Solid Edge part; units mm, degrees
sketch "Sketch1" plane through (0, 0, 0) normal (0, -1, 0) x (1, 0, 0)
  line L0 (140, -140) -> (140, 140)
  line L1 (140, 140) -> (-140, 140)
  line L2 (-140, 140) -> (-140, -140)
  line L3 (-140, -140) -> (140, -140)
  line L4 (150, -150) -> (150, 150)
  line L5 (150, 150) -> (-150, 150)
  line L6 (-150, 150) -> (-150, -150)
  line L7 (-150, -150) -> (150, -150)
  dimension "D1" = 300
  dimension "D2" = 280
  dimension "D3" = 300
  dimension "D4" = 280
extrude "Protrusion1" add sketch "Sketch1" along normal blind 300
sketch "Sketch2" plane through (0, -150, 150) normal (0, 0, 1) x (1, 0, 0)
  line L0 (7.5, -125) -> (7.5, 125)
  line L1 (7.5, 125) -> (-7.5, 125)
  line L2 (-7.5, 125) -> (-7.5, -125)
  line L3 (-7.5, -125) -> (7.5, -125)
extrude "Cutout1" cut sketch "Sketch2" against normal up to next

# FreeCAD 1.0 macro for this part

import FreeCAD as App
import Part
import Sketcher
Q = App.Units.Quantity

doc = App.newDocument("Part")
body = doc.addObject("PartDesign::Body", "Body")

# Sketch on XZ plane
sketch1 = body.newObject("Sketcher::SketchObject", "Sketch")
sketch1.AttachmentSupport = (doc.getObject("XZ_Plane"), [""])
sketch1.MapMode = "FlatFace"
sketch1.addGeometry([
    Part.LineSegment(App.Vector(-150, -150, 0), App.Vector(150, -150, 0)),  # 0
    Part.LineSegment(App.Vector(150, -150, 0), App.Vector(150, 150, 0)),  # 1
    Part.LineSegment(App.Vector(150, 150, 0), App.Vector(-150, 150, 0)),  # 2
    Part.LineSegment(App.Vector(-150, 150, 0), App.Vector(-150, -150, 0)),  # 3
    Part.LineSegment(App.Vector(140, 140, 0), App.Vector(140, -140, 0)),  # 4
    Part.LineSegment(App.Vector(140, -140, 0), App.Vector(-140, -140, 0)),  # 5
    Part.LineSegment(App.Vector(-140, -140, 0), App.Vector(-140, 140, 0)),  # 6
    Part.LineSegment(App.Vector(-140, 140, 0), App.Vector(140, 140, 0)),  # 7
], False)
sketch1.addConstraint([
    Sketcher.Constraint("Coincident", 0, 2, 1, 1),
    Sketcher.Constraint("Coincident", 1, 2, 2, 1),
    Sketcher.Constraint("Coincident", 2, 2, 3, 1),
    Sketcher.Constraint("Coincident", 3, 2, 0, 1),
    Sketcher.Constraint("Coincident", 4, 2, 5, 1),
    Sketcher.Constraint("Coincident", 5, 2, 6, 1),
    Sketcher.Constraint("Coincident", 6, 2, 7, 1),
    Sketcher.Constraint("Coincident", 7, 2, 4, 1),
    Sketcher.Constraint("Horizontal", 0),
    Sketcher.Constraint("Vertical", 1),
    Sketcher.Constraint("Horizontal", 2),
    Sketcher.Constraint("Vertical", 3),
    Sketcher.Constraint("Vertical", 4),
    Sketcher.Constraint("Horizontal", 5),
    Sketcher.Constraint("Vertical", 6),
    Sketcher.Constraint("Horizontal", 7),
    Sketcher.Constraint("Symmetric", 0, 2, 2, 2, -1, 1),
    Sketcher.Constraint("Symmetric", 4, 2, 6, 2, -1, 1),
    Sketcher.Constraint("Equal", 2, 1),
    Sketcher.Constraint("Equal", 7, 4),
    Sketcher.Constraint("DistanceX", 0, 1, 0, 2, Q("300 mm")),
    Sketcher.Constraint("DistanceX", 5, 2, 5, 1, Q("280 mm")),
])
pad1 = body.newObject("PartDesign::Pad", "Pad")
pad1.Profile = sketch1
pad1.Length = 300

# Sketch on XY plane
sketch2 = body.newObject("Sketcher::SketchObject", "Sketch001")
sketch2.AttachmentSupport = (doc.getObject("XY_Plane"), [""])
sketch2.MapMode = "FlatFace"
sketch2.AttachmentOffset = App.Placement(App.Vector(0, 0, 150), App.Rotation())
sketch2.addGeometry([
    Part.LineSegment(App.Vector(-8, -275, 0), App.Vector(8, -275, 0)),
    Part.LineSegment(App.Vector(8, -275, 0), App.Vector(8, -25, 0)),
    Part.LineSegment(App.Vector(8, -25, 0), App.Vector(-8, -25, 0)),
    Part.LineSegment(App.Vector(-8, -25, 0), App.Vector(-8, -275, 0)),
], False)
sketch2.addConstraint([
    Sketcher.Constraint("Coincident", 0, 2, 1, 1),
    Sketcher.Constraint("Coincident", 1, 2, 2, 1),
    Sketcher.Constraint("Coincident", 2, 2, 3, 1),
    Sketcher.Constraint("Coincident", 3, 2, 0, 1),
    Sketcher.Constraint("Horizontal", 0),
    Sketcher.Constraint("Vertical", 1),
    Sketcher.Constraint("Horizontal", 2),
    Sketcher.Constraint("Vertical", 3),
    Sketcher.Constraint("DistanceX", 0, 1, 0, 2, Q("15 mm")),
    Sketcher.Constraint("DistanceY", 1, 1, 1, 2, Q("250 mm")),
    Sketcher.Constraint("DistanceY", 0, 2, -1, 1, Q("275 mm")),
    Sketcher.Constraint("DistanceX", -1, 1, 0, 2, Q("7.5 mm")),
])
pocket1 = body.newObject("PartDesign::Pocket", "Pocket")
pocket1.Profile = sketch2
pocket1.Type = "UpToFirst"

doc.recompute()
